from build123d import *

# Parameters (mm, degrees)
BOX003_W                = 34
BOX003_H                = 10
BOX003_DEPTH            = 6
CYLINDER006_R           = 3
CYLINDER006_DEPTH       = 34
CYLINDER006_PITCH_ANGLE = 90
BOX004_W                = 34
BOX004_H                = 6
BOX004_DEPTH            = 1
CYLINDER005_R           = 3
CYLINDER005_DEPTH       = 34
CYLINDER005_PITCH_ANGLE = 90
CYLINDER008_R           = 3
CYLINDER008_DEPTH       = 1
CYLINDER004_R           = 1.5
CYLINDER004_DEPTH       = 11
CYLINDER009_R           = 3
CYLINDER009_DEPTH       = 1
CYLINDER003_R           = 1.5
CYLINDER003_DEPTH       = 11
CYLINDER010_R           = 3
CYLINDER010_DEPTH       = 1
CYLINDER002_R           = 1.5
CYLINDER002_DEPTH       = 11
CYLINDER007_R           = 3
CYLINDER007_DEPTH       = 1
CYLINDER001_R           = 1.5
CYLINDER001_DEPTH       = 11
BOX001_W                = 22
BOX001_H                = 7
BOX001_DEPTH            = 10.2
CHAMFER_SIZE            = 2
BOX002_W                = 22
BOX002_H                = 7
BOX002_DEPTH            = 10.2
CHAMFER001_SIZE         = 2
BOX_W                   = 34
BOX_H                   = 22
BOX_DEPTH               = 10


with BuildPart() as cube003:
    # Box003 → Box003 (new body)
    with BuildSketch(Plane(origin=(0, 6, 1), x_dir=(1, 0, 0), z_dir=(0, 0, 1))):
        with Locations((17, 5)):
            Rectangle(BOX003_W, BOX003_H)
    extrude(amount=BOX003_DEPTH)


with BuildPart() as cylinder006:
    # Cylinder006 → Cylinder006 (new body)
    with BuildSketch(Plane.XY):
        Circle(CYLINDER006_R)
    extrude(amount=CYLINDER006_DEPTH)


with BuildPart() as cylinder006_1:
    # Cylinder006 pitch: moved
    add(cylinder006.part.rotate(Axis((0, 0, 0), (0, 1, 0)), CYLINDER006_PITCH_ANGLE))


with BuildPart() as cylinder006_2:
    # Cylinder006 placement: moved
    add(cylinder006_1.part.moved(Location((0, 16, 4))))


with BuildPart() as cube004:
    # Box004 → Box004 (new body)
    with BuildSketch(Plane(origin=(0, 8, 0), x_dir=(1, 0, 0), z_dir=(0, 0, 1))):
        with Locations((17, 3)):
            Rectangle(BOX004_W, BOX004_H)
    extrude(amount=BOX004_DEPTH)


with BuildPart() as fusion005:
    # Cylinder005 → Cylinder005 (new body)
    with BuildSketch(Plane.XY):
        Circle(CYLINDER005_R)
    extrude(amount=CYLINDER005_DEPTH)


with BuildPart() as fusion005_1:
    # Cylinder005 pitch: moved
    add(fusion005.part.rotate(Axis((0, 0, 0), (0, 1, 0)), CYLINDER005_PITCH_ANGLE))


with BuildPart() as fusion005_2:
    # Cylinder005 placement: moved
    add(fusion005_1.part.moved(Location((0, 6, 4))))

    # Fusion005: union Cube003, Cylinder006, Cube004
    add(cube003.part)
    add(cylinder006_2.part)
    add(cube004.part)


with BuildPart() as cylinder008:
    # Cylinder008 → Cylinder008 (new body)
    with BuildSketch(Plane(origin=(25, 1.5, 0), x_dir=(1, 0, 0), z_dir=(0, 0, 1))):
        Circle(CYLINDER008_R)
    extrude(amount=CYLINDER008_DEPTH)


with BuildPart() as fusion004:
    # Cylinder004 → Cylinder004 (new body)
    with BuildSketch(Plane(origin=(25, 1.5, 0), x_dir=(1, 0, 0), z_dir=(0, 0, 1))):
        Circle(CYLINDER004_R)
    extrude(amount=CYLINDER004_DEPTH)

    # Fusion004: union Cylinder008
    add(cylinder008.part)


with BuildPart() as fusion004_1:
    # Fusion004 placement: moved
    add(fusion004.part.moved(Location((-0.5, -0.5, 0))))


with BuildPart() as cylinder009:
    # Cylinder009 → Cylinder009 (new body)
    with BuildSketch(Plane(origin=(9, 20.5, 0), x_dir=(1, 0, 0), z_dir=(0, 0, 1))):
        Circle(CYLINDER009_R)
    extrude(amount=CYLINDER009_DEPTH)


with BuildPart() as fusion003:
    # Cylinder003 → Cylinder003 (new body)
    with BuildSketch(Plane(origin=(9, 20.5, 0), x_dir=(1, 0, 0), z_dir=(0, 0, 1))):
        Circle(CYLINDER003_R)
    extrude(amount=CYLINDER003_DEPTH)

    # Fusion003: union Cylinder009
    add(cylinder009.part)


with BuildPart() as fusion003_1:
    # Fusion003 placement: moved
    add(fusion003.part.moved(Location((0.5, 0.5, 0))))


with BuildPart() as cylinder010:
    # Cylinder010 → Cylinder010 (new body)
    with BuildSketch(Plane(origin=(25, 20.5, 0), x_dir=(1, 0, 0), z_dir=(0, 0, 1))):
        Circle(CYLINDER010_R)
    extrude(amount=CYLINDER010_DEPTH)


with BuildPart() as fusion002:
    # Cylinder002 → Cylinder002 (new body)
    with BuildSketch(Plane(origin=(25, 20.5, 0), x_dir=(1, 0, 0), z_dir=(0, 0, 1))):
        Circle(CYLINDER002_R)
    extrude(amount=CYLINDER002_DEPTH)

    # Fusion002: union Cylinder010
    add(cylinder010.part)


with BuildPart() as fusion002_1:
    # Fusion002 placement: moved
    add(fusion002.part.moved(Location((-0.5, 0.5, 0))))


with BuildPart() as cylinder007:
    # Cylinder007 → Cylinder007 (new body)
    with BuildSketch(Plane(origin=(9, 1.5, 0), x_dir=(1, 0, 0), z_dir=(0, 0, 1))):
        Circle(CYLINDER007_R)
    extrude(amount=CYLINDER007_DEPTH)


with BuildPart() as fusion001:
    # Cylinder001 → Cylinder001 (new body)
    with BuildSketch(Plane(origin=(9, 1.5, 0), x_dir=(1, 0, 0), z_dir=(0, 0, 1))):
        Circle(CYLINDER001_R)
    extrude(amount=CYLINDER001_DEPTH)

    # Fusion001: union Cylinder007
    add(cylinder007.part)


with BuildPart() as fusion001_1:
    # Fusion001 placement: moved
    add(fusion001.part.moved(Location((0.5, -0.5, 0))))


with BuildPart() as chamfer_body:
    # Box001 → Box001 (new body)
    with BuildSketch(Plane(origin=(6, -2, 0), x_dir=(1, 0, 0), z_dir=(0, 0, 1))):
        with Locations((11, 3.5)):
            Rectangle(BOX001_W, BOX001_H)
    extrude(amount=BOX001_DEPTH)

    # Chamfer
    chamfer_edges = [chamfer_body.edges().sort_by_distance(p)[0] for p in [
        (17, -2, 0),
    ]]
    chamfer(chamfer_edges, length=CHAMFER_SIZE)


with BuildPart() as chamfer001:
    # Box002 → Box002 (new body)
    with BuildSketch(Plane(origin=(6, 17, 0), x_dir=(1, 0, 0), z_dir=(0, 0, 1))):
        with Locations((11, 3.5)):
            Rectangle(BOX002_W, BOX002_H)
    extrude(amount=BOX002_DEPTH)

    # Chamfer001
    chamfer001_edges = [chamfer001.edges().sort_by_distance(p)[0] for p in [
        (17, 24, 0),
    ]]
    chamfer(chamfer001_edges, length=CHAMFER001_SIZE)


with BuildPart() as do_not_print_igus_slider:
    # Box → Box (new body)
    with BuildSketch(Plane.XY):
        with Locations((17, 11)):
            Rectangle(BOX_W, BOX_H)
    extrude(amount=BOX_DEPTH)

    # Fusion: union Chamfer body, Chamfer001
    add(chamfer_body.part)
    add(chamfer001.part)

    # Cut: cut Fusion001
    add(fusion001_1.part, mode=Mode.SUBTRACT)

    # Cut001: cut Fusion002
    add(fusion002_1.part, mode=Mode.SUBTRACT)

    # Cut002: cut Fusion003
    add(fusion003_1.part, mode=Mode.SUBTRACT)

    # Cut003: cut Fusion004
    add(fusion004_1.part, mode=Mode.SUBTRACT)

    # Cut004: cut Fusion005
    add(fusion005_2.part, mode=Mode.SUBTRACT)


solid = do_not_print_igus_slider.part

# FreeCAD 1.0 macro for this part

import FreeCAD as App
import Part
import Sketcher

V = App.Vector
Q = App.Units.Quantity


def edges_at(feature, points):
    """Names of the edges that pass closest to the given points."""
    edges = feature.Shape.Edges
    near = lambda p: min(range(len(edges)), key=lambda i: edges[i].distToShape(Part.Vertex(*p))[0])
    return sorted({f"Edge{near(p) + 1}" for p in points})

doc = App.newDocument("Part")
body = doc.addObject("PartDesign::Body", "Body")

# Sketch on XY plane
sketch1 = body.newObject("Sketcher::SketchObject", "Sketch")
sketch1.AttachmentSupport = (doc.getObject("XY_Plane"), [""])
sketch1.MapMode = "FlatFace"
sketch1.AttachmentOffset = App.Placement(V(0, 0, 1), App.Rotation())
sketch1.addGeometry([
    Part.LineSegment(V(0, 16, 0), V(0, 6, 0)),
    Part.LineSegment(V(0, 6, 0), V(34, 6, 0)),
    Part.LineSegment(V(34, 6, 0), V(34, 16, 0)),
    Part.LineSegment(V(34, 16, 0), V(0, 16, 0)),
], False)
sketch1.addConstraint([
    Sketcher.Constraint("Coincident", 0, 2, 1, 1),
    Sketcher.Constraint("Coincident", 1, 2, 2, 1),
    Sketcher.Constraint("Coincident", 2, 2, 3, 1),
    Sketcher.Constraint("Coincident", 3, 2, 0, 1),
    Sketcher.Constraint("Vertical", 0),
    Sketcher.Constraint("Horizontal", 1),
    Sketcher.Constraint("Vertical", 2),
    Sketcher.Constraint("Horizontal", 3),
    Sketcher.Constraint("PointOnObject", 0, 2, -2),
    Sketcher.Constraint("DistanceX", 1, 1, 1, 2, Q("34 mm")),
    Sketcher.Constraint("DistanceY", 0, 2, 0, 1, Q("10 mm")),
    Sketcher.Constraint("DistanceY", -1, 1, 0, 2, Q("6 mm")),
])
pad1 = body.newObject("PartDesign::Pad", "Pad")
pad1.Profile = sketch1
pad1.Length = 6
body2 = doc.addObject("PartDesign::Body", "Body001")

# Sketch on XY plane
sketch2 = body2.newObject("Sketcher::SketchObject", "Sketch001")
sketch2.AttachmentSupport = (doc.getObject("XY_Plane001"), [""])
sketch2.MapMode = "FlatFace"
sketch2.addGeometry(Part.Circle(V(0, 0, 0), V(0, 0, 1), 3), False)
sketch2.addConstraint([
    Sketcher.Constraint("Coincident", 0, 3, -1, 1),
    Sketcher.Constraint("Diameter", 0, Q("6 mm")),
])
pad2 = body2.newObject("PartDesign::Pad", "Pad001")
pad2.Profile = sketch2
pad2.Length = 34
body3 = doc.addObject("PartDesign::Body", "Body002")
doc.recompute()

body2.Placement = App.Placement(V(0, 0, 0), App.Rotation(V(0, 1, 0), 90))
boolean = body3.newObject("PartDesign::Boolean", "Boolean")
boolean.Type = "Fuse"
boolean.addObjects([body2])
body4 = doc.addObject("PartDesign::Body", "Body003")
doc.recompute()

body3.Placement = App.Placement(V(0, 16, 4), App.Rotation(V(0, 0, 1), 0))
boolean2 = body4.newObject("PartDesign::Boolean", "Boolean001")
boolean2.Type = "Fuse"
boolean2.addObjects([body3])
body5 = doc.addObject("PartDesign::Body", "Body004")

# Sketch on XY plane
sketch3 = body5.newObject("Sketcher::SketchObject", "Sketch002")
sketch3.AttachmentSupport = (doc.getObject("XY_Plane004"), [""])
sketch3.MapMode = "FlatFace"
sketch3.addGeometry([
    Part.LineSegment(V(0, 14, 0), V(0, 8, 0)),
    Part.LineSegment(V(0, 8, 0), V(34, 8, 0)),
    Part.LineSegment(V(34, 8, 0), V(34, 14, 0)),
    Part.LineSegment(V(34, 14, 0), V(0, 14, 0)),
], False)
sketch3.addConstraint([
    Sketcher.Constraint("Coincident", 0, 2, 1, 1),
    Sketcher.Constraint("Coincident", 1, 2, 2, 1),
    Sketcher.Constraint("Coincident", 2, 2, 3, 1),
    Sketcher.Constraint("Coincident", 3, 2, 0, 1),
    Sketcher.Constraint("Vertical", 0),
    Sketcher.Constraint("Horizontal", 1),
    Sketcher.Constraint("Vertical", 2),
    Sketcher.Constraint("Horizontal", 3),
    Sketcher.Constraint("PointOnObject", 0, 2, -2),
    Sketcher.Constraint("DistanceX", 1, 1, 1, 2, Q("34 mm")),
    Sketcher.Constraint("DistanceY", 0, 2, 0, 1, Q("6 mm")),
    Sketcher.Constraint("DistanceY", -1, 1, 0, 2, Q("8 mm")),
])
pad3 = body5.newObject("PartDesign::Pad", "Pad002")
pad3.Profile = sketch3
pad3.Length = 1
body6 = doc.addObject("PartDesign::Body", "Body005")

# Sketch on XY plane
sketch4 = body6.newObject("Sketcher::SketchObject", "Sketch003")
sketch4.AttachmentSupport = (doc.getObject("XY_Plane005"), [""])
sketch4.MapMode = "FlatFace"
sketch4.addGeometry(Part.Circle(V(0, 0, 0), V(0, 0, 1), 3), False)
sketch4.addConstraint([
    Sketcher.Constraint("Coincident", 0, 3, -1, 1),
    Sketcher.Constraint("Diameter", 0, Q("6 mm")),
])
pad4 = body6.newObject("PartDesign::Pad", "Pad003")
pad4.Profile = sketch4
pad4.Length = 34
body7 = doc.addObject("PartDesign::Body", "Body006")
doc.recompute()

body6.Placement = App.Placement(V(0, 0, 0), App.Rotation(V(0, 1, 0), 90))
boolean3 = body7.newObject("PartDesign::Boolean", "Boolean002")
boolean3.Type = "Fuse"
boolean3.addObjects([body6])
body8 = doc.addObject("PartDesign::Body", "Body007")
doc.recompute()

body7.Placement = App.Placement(V(0, 6, 4), App.Rotation(V(0, 0, 1), 0))
boolean4 = body8.newObject("PartDesign::Boolean", "Boolean003")
boolean4.Type = "Fuse"
boolean4.addObjects([body7])
doc.recompute()

boolean5 = body8.newObject("PartDesign::Boolean", "Boolean004")
boolean5.Type = "Fuse"
boolean5.addObjects([body])
doc.recompute()

boolean6 = body8.newObject("PartDesign::Boolean", "Boolean005")
boolean6.Type = "Fuse"
boolean6.addObjects([body4])
doc.recompute()

boolean7 = body8.newObject("PartDesign::Boolean", "Boolean006")
boolean7.Type = "Fuse"
boolean7.addObjects([body5])
body9 = doc.addObject("PartDesign::Body", "Body008")

# Sketch on XY plane
sketch5 = body9.newObject("Sketcher::SketchObject", "Sketch004")
sketch5.AttachmentSupport = (doc.getObject("XY_Plane008"), [""])
sketch5.MapMode = "FlatFace"
sketch5.addGeometry(Part.Circle(V(25, 1.5, 0), V(0, 0, 1), 3), False)
sketch5.addConstraint([
    Sketcher.Constraint("Diameter", 0, Q("6 mm")),
    Sketcher.Constraint("DistanceX", -1, 1, 0, 3, Q("25 mm")),
    Sketcher.Constraint("DistanceY", -1, 1, 0, 3, Q("1.5 mm")),
])
pad5 = body9.newObject("PartDesign::Pad", "Pad004")
pad5.Profile = sketch5
pad5.Length = 1
body10 = doc.addObject("PartDesign::Body", "Body009")

# Sketch on XY plane
sketch6 = body10.newObject("Sketcher::SketchObject", "Sketch005")
sketch6.AttachmentSupport = (doc.getObject("XY_Plane009"), [""])
sketch6.MapMode = "FlatFace"
sketch6.addGeometry(Part.Circle(V(25, 1.5, 0), V(0, 0, 1), 1.5), False)
sketch6.addConstraint([
    Sketcher.Constraint("Diameter", 0, Q("3 mm")),
    Sketcher.Constraint("DistanceX", -1, 1, 0, 3, Q("25 mm")),
    Sketcher.Constraint("DistanceY", -1, 1, 0, 3, Q("1.5 mm")),
])
pad6 = body10.newObject("PartDesign::Pad", "Pad005")
pad6.Profile = sketch6
pad6.Length = 11
doc.recompute()

boolean8 = body10.newObject("PartDesign::Boolean", "Boolean007")
boolean8.Type = "Fuse"
boolean8.addObjects([body9])
body11 = doc.addObject("PartDesign::Body", "Body010")
doc.recompute()

body10.Placement = App.Placement(V(-0.5, -0.5, 0), App.Rotation(V(0, 0, 1), 0))
boolean9 = body11.newObject("PartDesign::Boolean", "Boolean008")
boolean9.Type = "Fuse"
boolean9.addObjects([body10])
body12 = doc.addObject("PartDesign::Body", "Body011")

# Sketch on XY plane
sketch7 = body12.newObject("Sketcher::SketchObject", "Sketch006")
sketch7.AttachmentSupport = (doc.getObject("XY_Plane011"), [""])
sketch7.MapMode = "FlatFace"
sketch7.addGeometry(Part.Circle(V(9, 20.5, 0), V(0, 0, 1), 3), False)
sketch7.addConstraint([
    Sketcher.Constraint("Diameter", 0, Q("6 mm")),
    Sketcher.Constraint("DistanceX", -1, 1, 0, 3, Q("9 mm")),
    Sketcher.Constraint("DistanceY", -1, 1, 0, 3, Q("20.5 mm")),
])
pad7 = body12.newObject("PartDesign::Pad", "Pad006")
pad7.Profile = sketch7
pad7.Length = 1
body13 = doc.addObject("PartDesign::Body", "Body012")

# Sketch on XY plane
sketch8 = body13.newObject("Sketcher::SketchObject", "Sketch007")
sketch8.AttachmentSupport = (doc.getObject("XY_Plane012"), [""])
sketch8.MapMode = "FlatFace"
sketch8.addGeometry(Part.Circle(V(9, 20.5, 0), V(0, 0, 1), 1.5), False)
sketch8.addConstraint([
    Sketcher.Constraint("Diameter", 0, Q("3 mm")),
    Sketcher.Constraint("DistanceX", -1, 1, 0, 3, Q("9 mm")),
    Sketcher.Constraint("DistanceY", -1, 1, 0, 3, Q("20.5 mm")),
])
pad8 = body13.newObject("PartDesign::Pad", "Pad007")
pad8.Profile = sketch8
pad8.Length = 11
doc.recompute()

boolean10 = body13.newObject("PartDesign::Boolean", "Boolean009")
boolean10.Type = "Fuse"
boolean10.addObjects([body12])
body14 = doc.addObject("PartDesign::Body", "Body013")
doc.recompute()

body13.Placement = App.Placement(V(0.5, 0.5, 0), App.Rotation(V(0, 0, 1), 0))
boolean11 = body14.newObject("PartDesign::Boolean", "Boolean010")
boolean11.Type = "Fuse"
boolean11.addObjects([body13])
body15 = doc.addObject("PartDesign::Body", "Body014")

# Sketch on XY plane
sketch9 = body15.newObject("Sketcher::SketchObject", "Sketch008")
sketch9.AttachmentSupport = (doc.getObject("XY_Plane014"), [""])
sketch9.MapMode = "FlatFace"
sketch9.addGeometry(Part.Circle(V(25, 20.5, 0), V(0, 0, 1), 3), False)
sketch9.addConstraint([
    Sketcher.Constraint("Diameter", 0, Q("6 mm")),
    Sketcher.Constraint("DistanceX", -1, 1, 0, 3, Q("25 mm")),
    Sketcher.Constraint("DistanceY", -1, 1, 0, 3, Q("20.5 mm")),
])
pad9 = body15.newObject("PartDesign::Pad", "Pad008")
pad9.Profile = sketch9
pad9.Length = 1
body16 = doc.addObject("PartDesign::Body", "Body015")

# Sketch on XY plane
sketch10 = body16.newObject("Sketcher::SketchObject", "Sketch009")
sketch10.AttachmentSupport = (doc.getObject("XY_Plane015"), [""])
sketch10.MapMode = "FlatFace"
sketch10.addGeometry(Part.Circle(V(25, 20.5, 0), V(0, 0, 1), 1.5), False)
sketch10.addConstraint([
    Sketcher.Constraint("Diameter", 0, Q("3 mm")),
    Sketcher.Constraint("DistanceX", -1, 1, 0, 3, Q("25 mm")),
    Sketcher.Constraint("DistanceY", -1, 1, 0, 3, Q("20.5 mm")),
])
pad10 = body16.newObject("PartDesign::Pad", "Pad009")
pad10.Profile = sketch10
pad10.Length = 11
doc.recompute()

boolean12 = body16.newObject("PartDesign::Boolean", "Boolean011")
boolean12.Type = "Fuse"
boolean12.addObjects([body15])
body17 = doc.addObject("PartDesign::Body", "Body016")
doc.recompute()

body16.Placement = App.Placement(V(-0.5, 0.5, 0), App.Rotation(V(0, 0, 1), 0))
boolean13 = body17.newObject("PartDesign::Boolean", "Boolean012")
boolean13.Type = "Fuse"
boolean13.addObjects([body16])
body18 = doc.addObject("PartDesign::Body", "Body017")

# Sketch on XY plane
sketch11 = body18.newObject("Sketcher::SketchObject", "Sketch010")
sketch11.AttachmentSupport = (doc.getObject("XY_Plane017"), [""])
sketch11.MapMode = "FlatFace"
sketch11.addGeometry(Part.Circle(V(9, 1.5, 0), V(0, 0, 1), 3), False)
sketch11.addConstraint([
    Sketcher.Constraint("Diameter", 0, Q("6 mm")),
    Sketcher.Constraint("DistanceX", -1, 1, 0, 3, Q("9 mm")),
    Sketcher.Constraint("DistanceY", -1, 1, 0, 3, Q("1.5 mm")),
])
pad11 = body18.newObject("PartDesign::Pad", "Pad010")
pad11.Profile = sketch11
pad11.Length = 1
body19 = doc.addObject("PartDesign::Body", "Body018")

# Sketch on XY plane
sketch12 = body19.newObject("Sketcher::SketchObject", "Sketch011")
sketch12.AttachmentSupport = (doc.getObject("XY_Plane018"), [""])
sketch12.MapMode = "FlatFace"
sketch12.addGeometry(Part.Circle(V(9, 1.5, 0), V(0, 0, 1), 1.5), False)
sketch12.addConstraint([
    Sketcher.Constraint("Diameter", 0, Q("3 mm")),
    Sketcher.Constraint("DistanceX", -1, 1, 0, 3, Q("9 mm")),
    Sketcher.Constraint("DistanceY", -1, 1, 0, 3, Q("1.5 mm")),
])
pad12 = body19.newObject("PartDesign::Pad", "Pad011")
pad12.Profile = sketch12
pad12.Length = 11
doc.recompute()

boolean14 = body19.newObject("PartDesign::Boolean", "Boolean013")
boolean14.Type = "Fuse"
boolean14.addObjects([body18])
body20 = doc.addObject("PartDesign::Body", "Body019")
doc.recompute()

body19.Placement = App.Placement(V(0.5, -0.5, 0), App.Rotation(V(0, 0, 1), 0))
boolean15 = body20.newObject("PartDesign::Boolean", "Boolean014")
boolean15.Type = "Fuse"
boolean15.addObjects([body19])
body21 = doc.addObject("PartDesign::Body", "Body020")

# Sketch on XY plane
sketch13 = body21.newObject("Sketcher::SketchObject", "Sketch012")
sketch13.AttachmentSupport = (doc.getObject("XY_Plane020"), [""])
sketch13.MapMode = "FlatFace"
sketch13.addGeometry([
    Part.LineSegment(V(6, 5, 0), V(6, -2, 0)),
    Part.LineSegment(V(6, -2, 0), V(28, -2, 0)),
    Part.LineSegment(V(28, -2, 0), V(28, 5, 0)),
    Part.LineSegment(V(28, 5, 0), V(6, 5, 0)),
], False)
sketch13.addConstraint([
    Sketcher.Constraint("Coincident", 0, 2, 1, 1),
    Sketcher.Constraint("Coincident", 1, 2, 2, 1),
    Sketcher.Constraint("Coincident", 2, 2, 3, 1),
    Sketcher.Constraint("Coincident", 3, 2, 0, 1),
    Sketcher.Constraint("Vertical", 0),
    Sketcher.Constraint("Horizontal", 1),
    Sketcher.Constraint("Vertical", 2),
    Sketcher.Constraint("Horizontal", 3),
    Sketcher.Constraint("DistanceX", 1, 1, 1, 2, Q("22 mm")),
    Sketcher.Constraint("DistanceY", 0, 2, 0, 1, Q("7 mm")),
    Sketcher.Constraint("DistanceX", -1, 1, 0, 2, Q("6 mm")),
    Sketcher.Constraint("DistanceY", 0, 2, -1, 1, Q("2 mm")),
])
pad13 = body21.newObject("PartDesign::Pad", "Pad012")
pad13.Profile = sketch13
pad13.Length = 10.2
doc.recompute()

chamfer = body21.newObject("PartDesign::Chamfer", "Chamfer")
chamfer.Base = (pad13, edges_at(pad13, [(17, -2, 0)]))
chamfer.Size = 2
body22 = doc.addObject("PartDesign::Body", "Body021")

# Sketch on XY plane
sketch14 = body22.newObject("Sketcher::SketchObject", "Sketch013")
sketch14.AttachmentSupport = (doc.getObject("XY_Plane021"), [""])
sketch14.MapMode = "FlatFace"
sketch14.addGeometry([
    Part.LineSegment(V(6, 24, 0), V(6, 17, 0)),
    Part.LineSegment(V(6, 17, 0), V(28, 17, 0)),
    Part.LineSegment(V(28, 17, 0), V(28, 24, 0)),
    Part.LineSegment(V(28, 24, 0), V(6, 24, 0)),
], False)
sketch14.addConstraint([
    Sketcher.Constraint("Coincident", 0, 2, 1, 1),
    Sketcher.Constraint("Coincident", 1, 2, 2, 1),
    Sketcher.Constraint("Coincident", 2, 2, 3, 1),
    Sketcher.Constraint("Coincident", 3, 2, 0, 1),
    Sketcher.Constraint("Vertical", 0),
    Sketcher.Constraint("Horizontal", 1),
    Sketcher.Constraint("Vertical", 2),
    Sketcher.Constraint("Horizontal", 3),
    Sketcher.Constraint("DistanceX", 1, 1, 1, 2, Q("22 mm")),
    Sketcher.Constraint("DistanceY", 0, 2, 0, 1, Q("7 mm")),
    Sketcher.Constraint("DistanceX", -1, 1, 0, 2, Q("6 mm")),
    Sketcher.Constraint("DistanceY", -1, 1, 0, 2, Q("17 mm")),
])
pad14 = body22.newObject("PartDesign::Pad", "Pad013")
pad14.Profile = sketch14
pad14.Length = 10.2
doc.recompute()

chamfer2 = body22.newObject("PartDesign::Chamfer", "Chamfer001")
chamfer2.Base = (pad14, edges_at(pad14, [(17, 24, 0)]))
chamfer2.Size = 2
body23 = doc.addObject("PartDesign::Body", "Body022")

# Sketch on XY plane
sketch15 = body23.newObject("Sketcher::SketchObject", "Sketch014")
sketch15.AttachmentSupport = (doc.getObject("XY_Plane022"), [""])
sketch15.MapMode = "FlatFace"
sketch15.addGeometry([
    Part.LineSegment(V(0, 22, 0), V(0, 0, 0)),
    Part.LineSegment(V(0, 0, 0), V(34, 0, 0)),
    Part.LineSegment(V(34, 0, 0), V(34, 22, 0)),
    Part.LineSegment(V(34, 22, 0), V(0, 22, 0)),
], False)
sketch15.addConstraint([
    Sketcher.Constraint("Coincident", 0, 2, 1, 1),
    Sketcher.Constraint("Coincident", 1, 2, 2, 1),
    Sketcher.Constraint("Coincident", 2, 2, 3, 1),
    Sketcher.Constraint("Coincident", 3, 2, 0, 1),
    Sketcher.Constraint("Vertical", 0),
    Sketcher.Constraint("Horizontal", 1),
    Sketcher.Constraint("Vertical", 2),
    Sketcher.Constraint("Horizontal", 3),
    Sketcher.Constraint("Coincident", 0, 2, -1, 1),
    Sketcher.Constraint("DistanceX", 1, 1, 1, 2, Q("34 mm")),
    Sketcher.Constraint("DistanceY", 0, 2, 0, 1, Q("22 mm")),
])
pad15 = body23.newObject("PartDesign::Pad", "Pad014")
pad15.Profile = sketch15
pad15.Length = 10
doc.recompute()

boolean16 = body23.newObject("PartDesign::Boolean", "Boolean015")
boolean16.Type = "Fuse"
boolean16.addObjects([body21])
doc.recompute()

boolean17 = body23.newObject("PartDesign::Boolean", "Boolean016")
boolean17.Type = "Fuse"
boolean17.addObjects([body22])
doc.recompute()

boolean18 = body23.newObject("PartDesign::Boolean", "Boolean017")
boolean18.Type = "Cut"
boolean18.addObjects([body20])
doc.recompute()

boolean19 = body23.newObject("PartDesign::Boolean", "Boolean018")
boolean19.Type = "Cut"
boolean19.addObjects([body17])
doc.recompute()

boolean20 = body23.newObject("PartDesign::Boolean", "Boolean019")
boolean20.Type = "Cut"
boolean20.addObjects([body14])
doc.recompute()

boolean21 = body23.newObject("PartDesign::Boolean", "Boolean020")
boolean21.Type = "Cut"
boolean21.addObjects([body11])
doc.recompute()

boolean22 = body23.newObject("PartDesign::Boolean", "Boolean021")
boolean22.Type = "Cut"
boolean22.addObjects([body8])

doc.recompute()
